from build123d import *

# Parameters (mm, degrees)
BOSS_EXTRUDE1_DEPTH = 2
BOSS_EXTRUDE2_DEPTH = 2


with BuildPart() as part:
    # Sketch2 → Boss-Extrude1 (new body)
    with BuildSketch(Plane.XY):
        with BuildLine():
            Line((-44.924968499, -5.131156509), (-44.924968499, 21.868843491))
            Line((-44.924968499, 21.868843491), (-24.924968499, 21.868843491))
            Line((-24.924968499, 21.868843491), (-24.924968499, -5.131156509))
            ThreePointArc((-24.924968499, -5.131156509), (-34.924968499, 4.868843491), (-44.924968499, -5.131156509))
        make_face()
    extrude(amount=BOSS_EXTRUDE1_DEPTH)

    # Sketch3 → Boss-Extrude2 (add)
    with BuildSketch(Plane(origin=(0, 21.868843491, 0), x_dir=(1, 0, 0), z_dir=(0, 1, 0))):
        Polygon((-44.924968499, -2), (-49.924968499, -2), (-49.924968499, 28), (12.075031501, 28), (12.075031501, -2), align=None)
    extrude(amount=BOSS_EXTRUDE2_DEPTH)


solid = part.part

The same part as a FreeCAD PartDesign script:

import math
import FreeCAD as App
import Part
import Sketcher
from FreeCAD import Vector

doc = App.newDocument("Part")
params = doc.addObject("Spreadsheet::Sheet", "Params")
for row, (alias, value) in enumerate([
    ("sketch1_radius", "10 mm"),
    ("sketch1_height", "27 mm"),
    ("pad1_length", "2 mm"),
    ("sketch2_width", "62 mm"),
    ("sketch2_height", "30 mm"),
    ("pad2_length", "2 mm"),
], start=1):
    params.set(f"A{row}", alias)
    params.set(f"B{row}", "=" + value)
    params.setAlias(f"B{row}", alias)

body = doc.addObject("PartDesign::Body", "Body")

# Sketch on XY plane
sketch1 = body.newObject("Sketcher::SketchObject", "Sketch")
sketch1.AttachmentSupport = (doc.getObject("XY_Plane"), [""])
sketch1.MapMode = "FlatFace"
sketch1.addGeometry([
    Part.LineSegment(Vector(-45, 22, 0), Vector(-45, -5, 0)),
    Part.ArcOfCircle(Part.Circle(Vector(-35, -5, 0), Vector(0, 0, 1), 10), math.radians(0), math.radians(180)),
    Part.LineSegment(Vector(-25, -5, 0), Vector(-25, 22, 0)),
    Part.LineSegment(Vector(-25, 22, 0), Vector(-45, 22, 0)),
], False)
sketch1.addConstraint([
    Sketcher.Constraint("Tangent", 0, 2, 1, 2),
    Sketcher.Constraint("Tangent", 1, 1, 2, 1),
    Sketcher.Constraint("Coincident", 2, 2, 3, 1),
    Sketcher.Constraint("Coincident", 3, 2, 0, 1),
    Sketcher.Constraint("Vertical", 0),
    Sketcher.Constraint("Vertical", 2),
    Sketcher.Constraint("Horizontal", 3),
    Sketcher.Constraint("Radius", 1, 10.0),
    Sketcher.Constraint("DistanceY", 0, 2, 0, 1, 27.0),
    Sketcher.Constraint("DistanceX", 1, 3, -1, 1, 34.924968),
    Sketcher.Constraint("DistanceY", 1, 3, -1, 1, 5.131157),
])
sketch1.setExpression("Constraints[7]", "Params.sketch1_radius")
sketch1.setExpression("Constraints[8]", "Params.sketch1_height")
pad1 = body.newObject("PartDesign::Pad", "Pad")
pad1.Profile = sketch1
pad1.setExpression("Length", "Params.pad1_length")

# Sketch on XZ plane
sketch2 = body.newObject("Sketcher::SketchObject", "Sketch001")
sketch2.AttachmentSupport = (doc.getObject("XZ_Plane"), [""])
sketch2.MapMode = "FlatFace"
sketch2.AttachmentOffset = App.Placement(Vector(0, 0, -21.868843), App.Rotation())
sketch2.addGeometry([
    Part.LineSegment(Vector(-50, 2, 0), Vector(12, 2, 0)),
    Part.LineSegment(Vector(12, 2, 0), Vector(12, -28, 0)),
    Part.LineSegment(Vector(12, -28, 0), Vector(-50, -28, 0)),
    Part.LineSegment(Vector(-50, -28, 0), Vector(-50, 2, 0)),
], False)
sketch2.addConstraint([
    Sketcher.Constraint("Coincident", 0, 2, 1, 1),
    Sketcher.Constraint("Coincident", 1, 2, 2, 1),
    Sketcher.Constraint("Coincident", 2, 2, 3, 1),
    Sketcher.Constraint("Coincident", 3, 2, 0, 1),
    Sketcher.Constraint("Horizontal", 0),
    Sketcher.Constraint("Vertical", 1),
    Sketcher.Constraint("Horizontal", 2),
    Sketcher.Constraint("Vertical", 3),
    Sketcher.Constraint("DistanceX", 0, 1, 0, 2, 62.0),
    Sketcher.Constraint("DistanceY", 1, 2, 1, 1, 30.0),
    Sketcher.Constraint("DistanceY", -1, 1, 0, 2, 2.0),
    Sketcher.Constraint("DistanceX", -1, 1, 0, 2, 12.075032),
])
sketch2.setExpression("Constraints[8]", "Params.sketch2_width")
sketch2.setExpression("Constraints[9]", "Params.sketch2_height")
pad2 = body.newObject("PartDesign::Pad", "Pad001")
pad2.Profile = sketch2
pad2.setExpression("Length", "Params.pad2_length")
pad2.Reversed = True

doc.recompute()
